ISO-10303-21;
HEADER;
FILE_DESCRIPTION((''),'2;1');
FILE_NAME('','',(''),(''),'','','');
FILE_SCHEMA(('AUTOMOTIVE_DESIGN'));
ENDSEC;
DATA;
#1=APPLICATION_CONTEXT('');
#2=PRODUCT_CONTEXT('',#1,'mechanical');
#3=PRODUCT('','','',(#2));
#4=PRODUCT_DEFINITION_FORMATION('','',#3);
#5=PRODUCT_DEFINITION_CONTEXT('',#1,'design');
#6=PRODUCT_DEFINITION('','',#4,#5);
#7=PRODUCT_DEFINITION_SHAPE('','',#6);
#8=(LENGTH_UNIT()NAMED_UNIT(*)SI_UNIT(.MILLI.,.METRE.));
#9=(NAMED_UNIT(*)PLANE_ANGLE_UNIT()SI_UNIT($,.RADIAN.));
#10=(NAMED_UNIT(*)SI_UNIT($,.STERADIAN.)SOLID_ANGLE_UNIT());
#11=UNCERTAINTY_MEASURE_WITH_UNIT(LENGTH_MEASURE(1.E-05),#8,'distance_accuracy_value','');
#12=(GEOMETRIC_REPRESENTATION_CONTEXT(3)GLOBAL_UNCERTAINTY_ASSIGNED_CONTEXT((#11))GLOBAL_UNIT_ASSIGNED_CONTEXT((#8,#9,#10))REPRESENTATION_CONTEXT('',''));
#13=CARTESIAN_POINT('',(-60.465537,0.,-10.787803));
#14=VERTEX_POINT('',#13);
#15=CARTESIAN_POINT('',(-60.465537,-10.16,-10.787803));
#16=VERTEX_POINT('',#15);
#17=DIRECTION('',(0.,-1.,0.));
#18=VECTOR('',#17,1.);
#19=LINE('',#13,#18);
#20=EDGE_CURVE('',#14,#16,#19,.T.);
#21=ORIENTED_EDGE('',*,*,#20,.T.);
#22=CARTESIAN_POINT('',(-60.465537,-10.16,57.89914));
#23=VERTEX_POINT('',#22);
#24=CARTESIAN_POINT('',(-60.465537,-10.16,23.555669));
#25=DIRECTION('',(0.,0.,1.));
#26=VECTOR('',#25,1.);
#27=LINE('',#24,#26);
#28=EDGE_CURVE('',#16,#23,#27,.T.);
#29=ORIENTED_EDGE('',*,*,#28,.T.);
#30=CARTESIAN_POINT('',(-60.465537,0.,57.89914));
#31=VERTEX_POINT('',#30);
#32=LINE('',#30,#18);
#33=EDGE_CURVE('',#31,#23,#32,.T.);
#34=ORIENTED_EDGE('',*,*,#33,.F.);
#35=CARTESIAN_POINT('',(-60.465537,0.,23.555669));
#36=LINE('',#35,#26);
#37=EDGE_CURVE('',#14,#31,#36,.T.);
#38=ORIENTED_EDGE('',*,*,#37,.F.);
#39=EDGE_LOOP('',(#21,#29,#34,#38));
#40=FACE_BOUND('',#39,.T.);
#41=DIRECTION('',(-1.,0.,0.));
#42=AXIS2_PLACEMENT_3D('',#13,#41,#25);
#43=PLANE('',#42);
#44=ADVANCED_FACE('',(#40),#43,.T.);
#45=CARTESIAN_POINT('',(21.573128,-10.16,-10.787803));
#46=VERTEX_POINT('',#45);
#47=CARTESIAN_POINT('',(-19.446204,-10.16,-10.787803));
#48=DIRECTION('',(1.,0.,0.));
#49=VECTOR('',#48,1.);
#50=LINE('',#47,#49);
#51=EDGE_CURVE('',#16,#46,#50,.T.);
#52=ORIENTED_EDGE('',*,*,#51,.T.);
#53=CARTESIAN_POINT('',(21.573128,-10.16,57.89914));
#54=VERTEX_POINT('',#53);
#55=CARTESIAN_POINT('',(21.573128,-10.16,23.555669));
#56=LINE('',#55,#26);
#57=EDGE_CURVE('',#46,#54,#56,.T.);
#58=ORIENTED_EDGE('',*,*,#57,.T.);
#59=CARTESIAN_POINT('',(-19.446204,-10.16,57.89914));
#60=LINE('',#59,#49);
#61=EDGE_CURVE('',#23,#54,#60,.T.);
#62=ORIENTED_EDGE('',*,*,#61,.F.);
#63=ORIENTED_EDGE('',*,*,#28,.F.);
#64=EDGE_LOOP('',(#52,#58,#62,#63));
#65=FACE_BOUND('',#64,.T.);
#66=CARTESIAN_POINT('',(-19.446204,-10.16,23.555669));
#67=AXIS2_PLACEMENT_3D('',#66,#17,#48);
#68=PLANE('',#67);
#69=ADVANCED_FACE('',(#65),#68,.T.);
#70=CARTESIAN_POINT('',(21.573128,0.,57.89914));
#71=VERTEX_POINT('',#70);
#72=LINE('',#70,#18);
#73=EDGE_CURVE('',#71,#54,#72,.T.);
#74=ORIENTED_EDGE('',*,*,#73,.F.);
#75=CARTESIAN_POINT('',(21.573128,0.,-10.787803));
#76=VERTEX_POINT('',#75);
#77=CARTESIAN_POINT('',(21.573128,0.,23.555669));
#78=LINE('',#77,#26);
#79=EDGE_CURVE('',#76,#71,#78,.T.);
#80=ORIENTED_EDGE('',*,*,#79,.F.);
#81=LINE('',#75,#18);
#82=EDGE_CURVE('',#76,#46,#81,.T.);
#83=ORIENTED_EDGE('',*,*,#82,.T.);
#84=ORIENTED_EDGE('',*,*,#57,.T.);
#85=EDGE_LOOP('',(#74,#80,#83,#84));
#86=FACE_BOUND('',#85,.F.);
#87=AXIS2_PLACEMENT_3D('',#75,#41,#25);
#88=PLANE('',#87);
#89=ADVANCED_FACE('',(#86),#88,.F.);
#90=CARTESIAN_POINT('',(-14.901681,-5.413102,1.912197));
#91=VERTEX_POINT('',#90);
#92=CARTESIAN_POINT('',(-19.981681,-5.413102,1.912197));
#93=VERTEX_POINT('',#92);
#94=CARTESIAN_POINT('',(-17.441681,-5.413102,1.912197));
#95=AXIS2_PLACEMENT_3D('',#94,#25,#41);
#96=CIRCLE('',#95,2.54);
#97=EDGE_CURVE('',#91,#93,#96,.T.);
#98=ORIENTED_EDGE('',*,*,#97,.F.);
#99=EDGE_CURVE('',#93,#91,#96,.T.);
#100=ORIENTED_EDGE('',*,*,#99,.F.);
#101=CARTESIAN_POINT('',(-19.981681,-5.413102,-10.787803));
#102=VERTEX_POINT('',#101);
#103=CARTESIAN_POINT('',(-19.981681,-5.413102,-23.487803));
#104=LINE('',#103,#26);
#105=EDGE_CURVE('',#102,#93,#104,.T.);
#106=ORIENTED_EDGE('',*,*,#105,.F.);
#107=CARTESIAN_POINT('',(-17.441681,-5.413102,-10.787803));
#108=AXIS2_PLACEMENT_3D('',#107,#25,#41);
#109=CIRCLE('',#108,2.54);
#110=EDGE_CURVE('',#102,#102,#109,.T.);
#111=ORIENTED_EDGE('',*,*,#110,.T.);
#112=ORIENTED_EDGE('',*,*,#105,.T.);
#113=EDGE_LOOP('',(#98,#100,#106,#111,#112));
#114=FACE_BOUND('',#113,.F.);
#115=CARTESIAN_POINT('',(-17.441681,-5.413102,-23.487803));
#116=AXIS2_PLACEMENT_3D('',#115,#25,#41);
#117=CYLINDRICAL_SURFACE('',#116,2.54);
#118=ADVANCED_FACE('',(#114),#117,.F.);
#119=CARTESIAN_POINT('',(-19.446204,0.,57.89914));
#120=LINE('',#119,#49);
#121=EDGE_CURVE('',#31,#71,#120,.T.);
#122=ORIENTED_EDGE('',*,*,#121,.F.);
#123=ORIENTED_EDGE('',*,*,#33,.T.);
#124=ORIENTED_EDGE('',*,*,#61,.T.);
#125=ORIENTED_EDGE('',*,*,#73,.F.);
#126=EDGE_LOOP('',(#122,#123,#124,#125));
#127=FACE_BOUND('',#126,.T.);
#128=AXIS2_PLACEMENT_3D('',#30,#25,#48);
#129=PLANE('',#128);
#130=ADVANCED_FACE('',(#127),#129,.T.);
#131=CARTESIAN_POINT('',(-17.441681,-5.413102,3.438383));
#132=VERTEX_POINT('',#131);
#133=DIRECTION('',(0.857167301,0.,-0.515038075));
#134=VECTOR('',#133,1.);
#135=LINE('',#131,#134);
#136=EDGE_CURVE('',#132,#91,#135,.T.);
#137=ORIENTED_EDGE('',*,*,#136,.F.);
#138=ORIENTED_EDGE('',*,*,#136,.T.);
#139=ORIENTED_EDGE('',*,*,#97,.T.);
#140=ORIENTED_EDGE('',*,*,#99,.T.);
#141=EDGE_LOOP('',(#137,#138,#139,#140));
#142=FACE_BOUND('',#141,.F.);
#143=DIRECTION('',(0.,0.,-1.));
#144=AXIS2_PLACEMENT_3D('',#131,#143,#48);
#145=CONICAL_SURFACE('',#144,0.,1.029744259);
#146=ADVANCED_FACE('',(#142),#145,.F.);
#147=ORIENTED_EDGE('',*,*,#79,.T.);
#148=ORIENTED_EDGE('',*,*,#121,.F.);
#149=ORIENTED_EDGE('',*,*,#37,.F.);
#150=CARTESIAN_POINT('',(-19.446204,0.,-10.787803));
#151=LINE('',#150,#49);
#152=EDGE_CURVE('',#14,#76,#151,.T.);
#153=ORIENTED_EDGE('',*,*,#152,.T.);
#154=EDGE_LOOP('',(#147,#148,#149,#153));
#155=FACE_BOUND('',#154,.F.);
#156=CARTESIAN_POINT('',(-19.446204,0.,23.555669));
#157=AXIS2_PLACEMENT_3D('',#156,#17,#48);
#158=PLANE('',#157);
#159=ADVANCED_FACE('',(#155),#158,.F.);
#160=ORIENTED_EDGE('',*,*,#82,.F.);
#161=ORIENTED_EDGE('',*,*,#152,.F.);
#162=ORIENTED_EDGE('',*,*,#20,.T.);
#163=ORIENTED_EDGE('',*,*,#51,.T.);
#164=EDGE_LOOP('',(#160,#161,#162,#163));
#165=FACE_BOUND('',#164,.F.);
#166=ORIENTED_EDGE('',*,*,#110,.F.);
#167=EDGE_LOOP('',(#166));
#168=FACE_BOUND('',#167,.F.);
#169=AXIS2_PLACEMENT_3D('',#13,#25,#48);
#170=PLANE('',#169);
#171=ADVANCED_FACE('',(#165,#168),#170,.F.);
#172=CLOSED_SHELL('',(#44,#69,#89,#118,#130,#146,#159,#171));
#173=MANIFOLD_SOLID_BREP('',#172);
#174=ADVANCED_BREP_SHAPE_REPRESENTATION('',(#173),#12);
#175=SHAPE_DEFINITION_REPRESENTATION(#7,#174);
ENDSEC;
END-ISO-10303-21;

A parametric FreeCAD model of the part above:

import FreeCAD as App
import Part
import Sketcher

V = App.Vector
Q = App.Units.Quantity


def add_polygon(sketch, points):
    """Adds a closed chain of lines whose ends are joined by coincident constraints."""
    first, n = sketch.GeometryCount, len(points)
    for a, b in zip(points, points[1:] + points[:1]):
        sketch.addGeometry(Part.LineSegment(App.Vector(*a, 0), App.Vector(*b, 0)), False)
    for i in range(n):
        sketch.addConstraint(Sketcher.Constraint("Coincident", first + i, 2, first + (i + 1) % n, 1))

doc = App.newDocument("Part")
body = doc.addObject("PartDesign::Body", "Body")

# Sketch on XZ plane
sketch1 = body.newObject("Sketcher::SketchObject", "Sketch")
sketch1.AttachmentSupport = (doc.getObject("XZ_Plane"), [""])
sketch1.MapMode = "FlatFace"
add_polygon(sketch1, [(-60, 58), (-60, -11), (22, -11), (22, 58)])  # lines 0-3
sketch1.addConstraint([
    Sketcher.Constraint("Vertical", 0),
    Sketcher.Constraint("Horizontal", 1),
    Sketcher.Constraint("Vertical", 2),
    Sketcher.Constraint("Horizontal", 3),
    Sketcher.Constraint("DistanceX", 1, 1, 1, 2, 82.038665),
    Sketcher.Constraint("DistanceY", 0, 2, 0, 1, 68.686943),
    Sketcher.Constraint("DistanceX", -1, 1, 1, 2, 21.573128),
    Sketcher.Constraint("DistanceY", -1, 1, 2, 2, 57.89914),
])
pad1 = body.newObject("PartDesign::Pad", "Pad")
pad1.Profile = sketch1
pad1.Length = Q("0.4 in")

# Sketch on XY plane
sketch2 = body.newObject("Sketcher::SketchObject", "Sketch001")
sketch2.AttachmentSupport = (doc.getObject("XY_Plane"), [""])
sketch2.MapMode = "FlatFace"
sketch2.AttachmentOffset = App.Placement(V(0, 0, -10.787803), App.Rotation())
sketch2.addGeometry(Part.Circle(V(-17.4, -5.4, 0), V(0, 0, 1), 2.5), False)
sketch2.addConstraint([
    Sketcher.Constraint("Diameter", 0, Q("0.2 in")),
    Sketcher.Constraint("DistanceY", 0, 3, -1, 1, 5.413102),
    Sketcher.Constraint("DistanceX", 0, 3, -1, 1, 17.441681),
])
doc.recompute()
hole = body.newObject("PartDesign::Hole", "Hole")
hole.Profile = sketch2
hole.ThreadType = "None"
hole.Diameter = Q("0.2 in")
hole.DepthType = "Dimension"
hole.Depth = Q("0.5 in")
hole.DrillPoint = "Angled"
hole.DrillPointAngle = 118
hole.Reversed = True

doc.recompute()
